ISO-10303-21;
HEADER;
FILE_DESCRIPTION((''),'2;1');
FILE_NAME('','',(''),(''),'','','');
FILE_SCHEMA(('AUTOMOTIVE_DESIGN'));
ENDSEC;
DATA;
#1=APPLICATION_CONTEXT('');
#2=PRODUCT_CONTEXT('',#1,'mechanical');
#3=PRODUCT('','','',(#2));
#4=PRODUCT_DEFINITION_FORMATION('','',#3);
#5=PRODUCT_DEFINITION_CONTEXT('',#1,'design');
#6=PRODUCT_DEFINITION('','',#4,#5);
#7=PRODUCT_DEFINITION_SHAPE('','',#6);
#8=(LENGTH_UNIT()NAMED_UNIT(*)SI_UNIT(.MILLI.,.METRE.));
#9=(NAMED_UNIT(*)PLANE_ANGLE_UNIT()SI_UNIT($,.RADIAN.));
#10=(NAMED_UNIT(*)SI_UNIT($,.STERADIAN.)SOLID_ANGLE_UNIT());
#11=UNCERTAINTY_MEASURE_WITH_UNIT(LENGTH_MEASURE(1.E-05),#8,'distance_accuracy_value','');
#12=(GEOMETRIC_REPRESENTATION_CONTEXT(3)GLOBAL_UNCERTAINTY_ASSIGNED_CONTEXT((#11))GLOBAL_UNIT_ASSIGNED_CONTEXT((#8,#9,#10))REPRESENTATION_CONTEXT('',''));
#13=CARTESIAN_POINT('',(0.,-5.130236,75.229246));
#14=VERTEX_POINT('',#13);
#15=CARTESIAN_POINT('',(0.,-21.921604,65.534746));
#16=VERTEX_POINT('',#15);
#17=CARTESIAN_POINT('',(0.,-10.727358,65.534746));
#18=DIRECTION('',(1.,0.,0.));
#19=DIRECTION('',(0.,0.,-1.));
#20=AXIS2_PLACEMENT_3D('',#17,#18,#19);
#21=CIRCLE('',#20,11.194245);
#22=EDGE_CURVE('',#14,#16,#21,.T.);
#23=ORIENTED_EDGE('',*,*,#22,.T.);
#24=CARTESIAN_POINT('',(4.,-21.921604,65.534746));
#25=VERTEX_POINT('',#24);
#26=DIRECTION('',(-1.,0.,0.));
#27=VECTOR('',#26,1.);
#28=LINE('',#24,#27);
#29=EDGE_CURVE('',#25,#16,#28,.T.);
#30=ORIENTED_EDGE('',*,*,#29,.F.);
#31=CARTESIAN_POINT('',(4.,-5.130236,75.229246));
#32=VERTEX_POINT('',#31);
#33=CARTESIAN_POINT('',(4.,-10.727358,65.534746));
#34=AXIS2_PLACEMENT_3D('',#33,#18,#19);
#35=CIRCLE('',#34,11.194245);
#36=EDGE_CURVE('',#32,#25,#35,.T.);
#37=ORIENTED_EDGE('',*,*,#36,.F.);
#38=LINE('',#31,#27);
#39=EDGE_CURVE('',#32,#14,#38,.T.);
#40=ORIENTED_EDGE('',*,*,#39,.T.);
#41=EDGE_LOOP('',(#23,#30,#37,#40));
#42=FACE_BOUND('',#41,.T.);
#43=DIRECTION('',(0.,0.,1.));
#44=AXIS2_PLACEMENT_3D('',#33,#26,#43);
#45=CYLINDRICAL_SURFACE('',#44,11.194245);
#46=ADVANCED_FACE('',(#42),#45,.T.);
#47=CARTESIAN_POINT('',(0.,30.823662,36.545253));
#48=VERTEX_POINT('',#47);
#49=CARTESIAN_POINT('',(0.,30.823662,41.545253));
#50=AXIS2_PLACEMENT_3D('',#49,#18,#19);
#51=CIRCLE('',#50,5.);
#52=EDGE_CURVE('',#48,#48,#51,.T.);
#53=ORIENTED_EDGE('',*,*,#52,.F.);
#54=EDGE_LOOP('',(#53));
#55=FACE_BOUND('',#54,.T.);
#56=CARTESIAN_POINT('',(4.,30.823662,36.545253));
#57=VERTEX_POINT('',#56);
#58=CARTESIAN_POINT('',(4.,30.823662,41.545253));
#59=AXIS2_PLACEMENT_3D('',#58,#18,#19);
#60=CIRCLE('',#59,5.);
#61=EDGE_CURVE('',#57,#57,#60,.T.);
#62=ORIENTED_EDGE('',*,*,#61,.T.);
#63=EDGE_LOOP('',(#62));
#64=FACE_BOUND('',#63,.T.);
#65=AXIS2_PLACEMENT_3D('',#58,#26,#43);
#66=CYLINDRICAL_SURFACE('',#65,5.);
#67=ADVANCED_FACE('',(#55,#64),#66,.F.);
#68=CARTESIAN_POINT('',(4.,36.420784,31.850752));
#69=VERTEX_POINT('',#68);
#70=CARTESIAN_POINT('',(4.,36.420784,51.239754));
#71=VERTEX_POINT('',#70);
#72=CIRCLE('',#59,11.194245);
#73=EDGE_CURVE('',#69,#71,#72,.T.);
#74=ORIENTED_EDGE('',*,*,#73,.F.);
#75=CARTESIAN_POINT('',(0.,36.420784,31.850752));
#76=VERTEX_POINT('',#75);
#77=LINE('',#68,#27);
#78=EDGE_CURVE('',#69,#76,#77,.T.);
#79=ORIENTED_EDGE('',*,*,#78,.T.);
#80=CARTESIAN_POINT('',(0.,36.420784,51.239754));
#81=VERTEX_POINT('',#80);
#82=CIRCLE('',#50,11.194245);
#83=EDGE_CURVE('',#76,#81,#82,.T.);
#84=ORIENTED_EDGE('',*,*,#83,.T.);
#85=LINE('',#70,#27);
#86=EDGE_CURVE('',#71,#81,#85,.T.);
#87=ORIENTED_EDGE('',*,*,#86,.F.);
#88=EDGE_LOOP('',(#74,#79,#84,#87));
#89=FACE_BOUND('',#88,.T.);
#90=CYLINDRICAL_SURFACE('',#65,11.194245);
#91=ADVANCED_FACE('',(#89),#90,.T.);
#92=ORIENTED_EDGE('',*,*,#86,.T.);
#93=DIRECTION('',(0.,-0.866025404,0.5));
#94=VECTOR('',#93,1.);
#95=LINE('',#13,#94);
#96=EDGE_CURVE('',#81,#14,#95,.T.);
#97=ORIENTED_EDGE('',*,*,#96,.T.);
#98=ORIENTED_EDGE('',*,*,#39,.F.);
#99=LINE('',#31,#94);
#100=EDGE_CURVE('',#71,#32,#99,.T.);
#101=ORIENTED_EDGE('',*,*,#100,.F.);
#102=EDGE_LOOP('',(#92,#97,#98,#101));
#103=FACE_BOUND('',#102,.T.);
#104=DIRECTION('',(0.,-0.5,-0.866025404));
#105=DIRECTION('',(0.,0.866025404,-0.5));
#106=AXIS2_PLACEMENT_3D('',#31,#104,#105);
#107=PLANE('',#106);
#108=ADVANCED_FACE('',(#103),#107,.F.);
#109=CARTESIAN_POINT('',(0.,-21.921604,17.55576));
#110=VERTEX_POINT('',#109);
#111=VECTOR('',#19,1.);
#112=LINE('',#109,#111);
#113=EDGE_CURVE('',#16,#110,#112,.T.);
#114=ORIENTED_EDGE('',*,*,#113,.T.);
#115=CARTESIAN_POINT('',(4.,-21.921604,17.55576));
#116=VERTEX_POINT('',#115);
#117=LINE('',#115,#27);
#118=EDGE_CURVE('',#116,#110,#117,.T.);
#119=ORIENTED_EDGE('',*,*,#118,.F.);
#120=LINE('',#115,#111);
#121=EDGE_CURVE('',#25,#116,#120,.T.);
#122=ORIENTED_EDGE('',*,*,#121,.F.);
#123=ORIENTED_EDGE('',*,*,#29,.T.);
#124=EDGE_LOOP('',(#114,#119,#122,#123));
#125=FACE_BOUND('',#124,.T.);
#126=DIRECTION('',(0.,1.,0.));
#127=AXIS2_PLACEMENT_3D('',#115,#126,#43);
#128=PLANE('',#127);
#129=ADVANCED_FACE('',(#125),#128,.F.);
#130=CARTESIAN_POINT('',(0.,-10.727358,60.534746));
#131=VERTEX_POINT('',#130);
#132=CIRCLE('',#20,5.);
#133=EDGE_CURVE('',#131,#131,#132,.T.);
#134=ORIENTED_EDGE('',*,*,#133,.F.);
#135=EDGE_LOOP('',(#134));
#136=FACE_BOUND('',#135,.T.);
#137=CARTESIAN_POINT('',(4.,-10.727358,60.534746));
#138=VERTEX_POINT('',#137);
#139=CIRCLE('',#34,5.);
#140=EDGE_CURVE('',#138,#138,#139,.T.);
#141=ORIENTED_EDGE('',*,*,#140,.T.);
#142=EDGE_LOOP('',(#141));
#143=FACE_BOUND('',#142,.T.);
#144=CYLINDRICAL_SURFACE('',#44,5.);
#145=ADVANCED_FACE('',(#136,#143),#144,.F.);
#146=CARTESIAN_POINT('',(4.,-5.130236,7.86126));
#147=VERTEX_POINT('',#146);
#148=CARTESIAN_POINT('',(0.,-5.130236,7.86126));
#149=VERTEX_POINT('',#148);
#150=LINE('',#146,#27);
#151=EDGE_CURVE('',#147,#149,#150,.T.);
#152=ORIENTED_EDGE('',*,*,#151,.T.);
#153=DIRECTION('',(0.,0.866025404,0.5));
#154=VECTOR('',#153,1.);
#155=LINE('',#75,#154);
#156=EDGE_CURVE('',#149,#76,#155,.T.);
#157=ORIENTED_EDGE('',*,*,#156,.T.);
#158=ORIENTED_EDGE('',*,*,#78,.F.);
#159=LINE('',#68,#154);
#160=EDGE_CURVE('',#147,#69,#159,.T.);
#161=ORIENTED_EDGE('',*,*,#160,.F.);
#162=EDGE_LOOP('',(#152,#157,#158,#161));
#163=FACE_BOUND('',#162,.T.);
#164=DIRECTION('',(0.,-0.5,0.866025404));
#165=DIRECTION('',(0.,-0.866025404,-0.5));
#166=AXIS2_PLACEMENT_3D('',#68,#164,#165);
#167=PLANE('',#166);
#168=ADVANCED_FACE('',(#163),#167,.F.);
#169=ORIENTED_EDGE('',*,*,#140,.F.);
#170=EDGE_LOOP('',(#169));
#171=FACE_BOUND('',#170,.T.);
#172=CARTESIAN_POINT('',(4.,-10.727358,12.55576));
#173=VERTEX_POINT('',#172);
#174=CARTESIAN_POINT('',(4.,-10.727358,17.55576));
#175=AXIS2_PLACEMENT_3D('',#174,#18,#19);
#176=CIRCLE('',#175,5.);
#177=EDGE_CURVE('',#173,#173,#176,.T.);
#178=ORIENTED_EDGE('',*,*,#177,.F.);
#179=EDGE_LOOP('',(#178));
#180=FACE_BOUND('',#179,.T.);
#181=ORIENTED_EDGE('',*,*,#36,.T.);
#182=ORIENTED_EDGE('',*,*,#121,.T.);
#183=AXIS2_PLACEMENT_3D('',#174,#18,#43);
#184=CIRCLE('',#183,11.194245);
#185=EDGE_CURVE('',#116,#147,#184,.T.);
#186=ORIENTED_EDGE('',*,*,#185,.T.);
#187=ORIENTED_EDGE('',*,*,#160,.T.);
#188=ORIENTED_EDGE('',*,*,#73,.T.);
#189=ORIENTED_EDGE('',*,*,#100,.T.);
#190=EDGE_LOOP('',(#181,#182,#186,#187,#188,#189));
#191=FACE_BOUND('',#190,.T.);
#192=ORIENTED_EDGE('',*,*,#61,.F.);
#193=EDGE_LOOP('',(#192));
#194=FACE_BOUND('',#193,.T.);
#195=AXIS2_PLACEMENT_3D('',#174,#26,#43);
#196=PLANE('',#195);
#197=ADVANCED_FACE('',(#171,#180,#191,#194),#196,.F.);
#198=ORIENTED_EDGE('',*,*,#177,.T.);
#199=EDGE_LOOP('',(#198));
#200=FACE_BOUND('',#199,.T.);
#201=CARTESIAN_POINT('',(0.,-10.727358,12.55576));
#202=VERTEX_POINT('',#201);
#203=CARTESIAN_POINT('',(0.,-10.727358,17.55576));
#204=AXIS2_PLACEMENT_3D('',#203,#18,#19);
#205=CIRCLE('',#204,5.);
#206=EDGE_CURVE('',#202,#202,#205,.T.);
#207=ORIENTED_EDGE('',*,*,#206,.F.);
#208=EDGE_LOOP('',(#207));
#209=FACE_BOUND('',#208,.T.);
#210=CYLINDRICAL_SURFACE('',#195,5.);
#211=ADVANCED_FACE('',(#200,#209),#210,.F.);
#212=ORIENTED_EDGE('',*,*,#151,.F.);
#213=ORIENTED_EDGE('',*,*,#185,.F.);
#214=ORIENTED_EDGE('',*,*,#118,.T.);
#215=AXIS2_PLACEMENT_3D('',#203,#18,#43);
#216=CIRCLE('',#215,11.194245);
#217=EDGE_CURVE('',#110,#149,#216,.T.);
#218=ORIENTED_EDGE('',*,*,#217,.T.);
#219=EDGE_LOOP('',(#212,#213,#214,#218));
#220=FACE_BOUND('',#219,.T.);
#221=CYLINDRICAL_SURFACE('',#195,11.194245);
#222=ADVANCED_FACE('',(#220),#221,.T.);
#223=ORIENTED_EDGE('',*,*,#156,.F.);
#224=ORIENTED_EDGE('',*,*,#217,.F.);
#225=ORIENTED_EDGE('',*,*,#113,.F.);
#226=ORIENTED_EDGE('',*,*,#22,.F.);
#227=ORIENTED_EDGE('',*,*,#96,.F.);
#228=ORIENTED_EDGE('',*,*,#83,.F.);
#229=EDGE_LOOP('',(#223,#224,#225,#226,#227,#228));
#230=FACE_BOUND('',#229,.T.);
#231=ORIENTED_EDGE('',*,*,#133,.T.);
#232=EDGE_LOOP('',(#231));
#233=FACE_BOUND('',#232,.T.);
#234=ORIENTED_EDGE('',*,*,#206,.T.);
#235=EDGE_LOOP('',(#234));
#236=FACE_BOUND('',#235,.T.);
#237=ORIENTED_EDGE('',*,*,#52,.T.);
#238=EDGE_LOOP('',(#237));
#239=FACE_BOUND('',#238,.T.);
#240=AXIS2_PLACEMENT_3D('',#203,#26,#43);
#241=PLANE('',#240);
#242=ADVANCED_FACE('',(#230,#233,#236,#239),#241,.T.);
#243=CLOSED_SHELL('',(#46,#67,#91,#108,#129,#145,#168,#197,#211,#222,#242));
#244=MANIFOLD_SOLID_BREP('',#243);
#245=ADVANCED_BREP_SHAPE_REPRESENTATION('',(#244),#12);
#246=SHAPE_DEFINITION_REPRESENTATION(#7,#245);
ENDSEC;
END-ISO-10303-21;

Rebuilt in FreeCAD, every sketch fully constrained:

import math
import FreeCAD as App
import Part
import Sketcher
Q = App.Units.Quantity

doc = App.newDocument("Part")
body = doc.addObject("PartDesign::Body", "Body")

# Sketch on YZ plane
sketch1 = doc.addObject("Sketcher::SketchObject", "Sketch")
body.addObject(sketch1)
sketch1.AttachmentSupport = (doc.YZ_Plane, [""])
sketch1.MapMode = "FlatFace"
sketch1.addGeometry(Part.LineSegment(App.Vector(-5, 8, 0), App.Vector(36, 32, 0)), False)
sketch1.addGeometry(Part.ArcOfCircle(Part.Circle(App.Vector(31, 42, 0), App.Vector(0, 0, 1), 11), math.radians(-60), math.radians(60)), False)
sketch1.addGeometry(Part.LineSegment(App.Vector(36, 51, 0), App.Vector(-5, 75, 0)), False)
sketch1.addGeometry(Part.ArcOfCircle(Part.Circle(App.Vector(-11, 66, 0), App.Vector(0, 0, 1), 11), math.radians(60), math.radians(180)), False)
sketch1.addGeometry(Part.LineSegment(App.Vector(-22, 66, 0), App.Vector(-22, 18, 0)), False)
sketch1.addGeometry(Part.ArcOfCircle(Part.Circle(App.Vector(-11, 18, 0), App.Vector(0, 0, 1), 11), math.radians(180), math.radians(300)), False)
sketch1.addGeometry(Part.Circle(App.Vector(-11, 18, 0), App.Vector(0, 0, 1), 5), False)
sketch1.addGeometry(Part.Circle(App.Vector(-11, 66, 0), App.Vector(0, 0, 1), 5), False)
sketch1.addGeometry(Part.Circle(App.Vector(31, 42, 0), App.Vector(0, 0, 1), 5), False)
sketch1.addConstraint(Sketcher.Constraint("Tangent", 0, 2, 1, 1))
sketch1.addConstraint(Sketcher.Constraint("Tangent", 1, 2, 2, 1))
sketch1.addConstraint(Sketcher.Constraint("Tangent", 2, 2, 3, 1))
sketch1.addConstraint(Sketcher.Constraint("Tangent", 3, 2, 4, 1))
sketch1.addConstraint(Sketcher.Constraint("Tangent", 4, 2, 5, 1))
sketch1.addConstraint(Sketcher.Constraint("Tangent", 5, 2, 0, 1))
sketch1.addConstraint(Sketcher.Constraint("Vertical", 4))
sketch1.addConstraint(Sketcher.Constraint("Coincident", 6, 3, 5, 3))
sketch1.addConstraint(Sketcher.Constraint("Coincident", 7, 3, 3, 3))
sketch1.addConstraint(Sketcher.Constraint("Coincident", 8, 3, 1, 3))
sketch1.addConstraint(Sketcher.Constraint("Equal", 1, 3))
sketch1.addConstraint(Sketcher.Constraint("Equal", 3, 5))
sketch1.addConstraint(Sketcher.Constraint("Equal", 6, 7))
sketch1.addConstraint(Sketcher.Constraint("Equal", 7, 8))
sketch1.addConstraint(Sketcher.Constraint("Vertical", 0, 2, 1, 2))
sketch1.addConstraint(Sketcher.Constraint("Diameter", 6, 10.0))
sketch1.addConstraint(Sketcher.Constraint("Angle", 0, Q("30 deg")))
sketch1.addConstraint(Sketcher.Constraint("Radius", 1, 11.194245))
sketch1.addConstraint(Sketcher.Constraint("DistanceY", 4, 2, 4, 1, 47.978985))
sketch1.addConstraint(Sketcher.Constraint("DistanceX", -1, 1, 1, 3, 30.823662))
sketch1.addConstraint(Sketcher.Constraint("DistanceY", -1, 1, 5, 3, 17.55576))
pad1 = doc.addObject("PartDesign::Pad", "Pad")
body.addObject(pad1)
pad1.Profile = sketch1
pad1.Length = 4

doc.recompute()
